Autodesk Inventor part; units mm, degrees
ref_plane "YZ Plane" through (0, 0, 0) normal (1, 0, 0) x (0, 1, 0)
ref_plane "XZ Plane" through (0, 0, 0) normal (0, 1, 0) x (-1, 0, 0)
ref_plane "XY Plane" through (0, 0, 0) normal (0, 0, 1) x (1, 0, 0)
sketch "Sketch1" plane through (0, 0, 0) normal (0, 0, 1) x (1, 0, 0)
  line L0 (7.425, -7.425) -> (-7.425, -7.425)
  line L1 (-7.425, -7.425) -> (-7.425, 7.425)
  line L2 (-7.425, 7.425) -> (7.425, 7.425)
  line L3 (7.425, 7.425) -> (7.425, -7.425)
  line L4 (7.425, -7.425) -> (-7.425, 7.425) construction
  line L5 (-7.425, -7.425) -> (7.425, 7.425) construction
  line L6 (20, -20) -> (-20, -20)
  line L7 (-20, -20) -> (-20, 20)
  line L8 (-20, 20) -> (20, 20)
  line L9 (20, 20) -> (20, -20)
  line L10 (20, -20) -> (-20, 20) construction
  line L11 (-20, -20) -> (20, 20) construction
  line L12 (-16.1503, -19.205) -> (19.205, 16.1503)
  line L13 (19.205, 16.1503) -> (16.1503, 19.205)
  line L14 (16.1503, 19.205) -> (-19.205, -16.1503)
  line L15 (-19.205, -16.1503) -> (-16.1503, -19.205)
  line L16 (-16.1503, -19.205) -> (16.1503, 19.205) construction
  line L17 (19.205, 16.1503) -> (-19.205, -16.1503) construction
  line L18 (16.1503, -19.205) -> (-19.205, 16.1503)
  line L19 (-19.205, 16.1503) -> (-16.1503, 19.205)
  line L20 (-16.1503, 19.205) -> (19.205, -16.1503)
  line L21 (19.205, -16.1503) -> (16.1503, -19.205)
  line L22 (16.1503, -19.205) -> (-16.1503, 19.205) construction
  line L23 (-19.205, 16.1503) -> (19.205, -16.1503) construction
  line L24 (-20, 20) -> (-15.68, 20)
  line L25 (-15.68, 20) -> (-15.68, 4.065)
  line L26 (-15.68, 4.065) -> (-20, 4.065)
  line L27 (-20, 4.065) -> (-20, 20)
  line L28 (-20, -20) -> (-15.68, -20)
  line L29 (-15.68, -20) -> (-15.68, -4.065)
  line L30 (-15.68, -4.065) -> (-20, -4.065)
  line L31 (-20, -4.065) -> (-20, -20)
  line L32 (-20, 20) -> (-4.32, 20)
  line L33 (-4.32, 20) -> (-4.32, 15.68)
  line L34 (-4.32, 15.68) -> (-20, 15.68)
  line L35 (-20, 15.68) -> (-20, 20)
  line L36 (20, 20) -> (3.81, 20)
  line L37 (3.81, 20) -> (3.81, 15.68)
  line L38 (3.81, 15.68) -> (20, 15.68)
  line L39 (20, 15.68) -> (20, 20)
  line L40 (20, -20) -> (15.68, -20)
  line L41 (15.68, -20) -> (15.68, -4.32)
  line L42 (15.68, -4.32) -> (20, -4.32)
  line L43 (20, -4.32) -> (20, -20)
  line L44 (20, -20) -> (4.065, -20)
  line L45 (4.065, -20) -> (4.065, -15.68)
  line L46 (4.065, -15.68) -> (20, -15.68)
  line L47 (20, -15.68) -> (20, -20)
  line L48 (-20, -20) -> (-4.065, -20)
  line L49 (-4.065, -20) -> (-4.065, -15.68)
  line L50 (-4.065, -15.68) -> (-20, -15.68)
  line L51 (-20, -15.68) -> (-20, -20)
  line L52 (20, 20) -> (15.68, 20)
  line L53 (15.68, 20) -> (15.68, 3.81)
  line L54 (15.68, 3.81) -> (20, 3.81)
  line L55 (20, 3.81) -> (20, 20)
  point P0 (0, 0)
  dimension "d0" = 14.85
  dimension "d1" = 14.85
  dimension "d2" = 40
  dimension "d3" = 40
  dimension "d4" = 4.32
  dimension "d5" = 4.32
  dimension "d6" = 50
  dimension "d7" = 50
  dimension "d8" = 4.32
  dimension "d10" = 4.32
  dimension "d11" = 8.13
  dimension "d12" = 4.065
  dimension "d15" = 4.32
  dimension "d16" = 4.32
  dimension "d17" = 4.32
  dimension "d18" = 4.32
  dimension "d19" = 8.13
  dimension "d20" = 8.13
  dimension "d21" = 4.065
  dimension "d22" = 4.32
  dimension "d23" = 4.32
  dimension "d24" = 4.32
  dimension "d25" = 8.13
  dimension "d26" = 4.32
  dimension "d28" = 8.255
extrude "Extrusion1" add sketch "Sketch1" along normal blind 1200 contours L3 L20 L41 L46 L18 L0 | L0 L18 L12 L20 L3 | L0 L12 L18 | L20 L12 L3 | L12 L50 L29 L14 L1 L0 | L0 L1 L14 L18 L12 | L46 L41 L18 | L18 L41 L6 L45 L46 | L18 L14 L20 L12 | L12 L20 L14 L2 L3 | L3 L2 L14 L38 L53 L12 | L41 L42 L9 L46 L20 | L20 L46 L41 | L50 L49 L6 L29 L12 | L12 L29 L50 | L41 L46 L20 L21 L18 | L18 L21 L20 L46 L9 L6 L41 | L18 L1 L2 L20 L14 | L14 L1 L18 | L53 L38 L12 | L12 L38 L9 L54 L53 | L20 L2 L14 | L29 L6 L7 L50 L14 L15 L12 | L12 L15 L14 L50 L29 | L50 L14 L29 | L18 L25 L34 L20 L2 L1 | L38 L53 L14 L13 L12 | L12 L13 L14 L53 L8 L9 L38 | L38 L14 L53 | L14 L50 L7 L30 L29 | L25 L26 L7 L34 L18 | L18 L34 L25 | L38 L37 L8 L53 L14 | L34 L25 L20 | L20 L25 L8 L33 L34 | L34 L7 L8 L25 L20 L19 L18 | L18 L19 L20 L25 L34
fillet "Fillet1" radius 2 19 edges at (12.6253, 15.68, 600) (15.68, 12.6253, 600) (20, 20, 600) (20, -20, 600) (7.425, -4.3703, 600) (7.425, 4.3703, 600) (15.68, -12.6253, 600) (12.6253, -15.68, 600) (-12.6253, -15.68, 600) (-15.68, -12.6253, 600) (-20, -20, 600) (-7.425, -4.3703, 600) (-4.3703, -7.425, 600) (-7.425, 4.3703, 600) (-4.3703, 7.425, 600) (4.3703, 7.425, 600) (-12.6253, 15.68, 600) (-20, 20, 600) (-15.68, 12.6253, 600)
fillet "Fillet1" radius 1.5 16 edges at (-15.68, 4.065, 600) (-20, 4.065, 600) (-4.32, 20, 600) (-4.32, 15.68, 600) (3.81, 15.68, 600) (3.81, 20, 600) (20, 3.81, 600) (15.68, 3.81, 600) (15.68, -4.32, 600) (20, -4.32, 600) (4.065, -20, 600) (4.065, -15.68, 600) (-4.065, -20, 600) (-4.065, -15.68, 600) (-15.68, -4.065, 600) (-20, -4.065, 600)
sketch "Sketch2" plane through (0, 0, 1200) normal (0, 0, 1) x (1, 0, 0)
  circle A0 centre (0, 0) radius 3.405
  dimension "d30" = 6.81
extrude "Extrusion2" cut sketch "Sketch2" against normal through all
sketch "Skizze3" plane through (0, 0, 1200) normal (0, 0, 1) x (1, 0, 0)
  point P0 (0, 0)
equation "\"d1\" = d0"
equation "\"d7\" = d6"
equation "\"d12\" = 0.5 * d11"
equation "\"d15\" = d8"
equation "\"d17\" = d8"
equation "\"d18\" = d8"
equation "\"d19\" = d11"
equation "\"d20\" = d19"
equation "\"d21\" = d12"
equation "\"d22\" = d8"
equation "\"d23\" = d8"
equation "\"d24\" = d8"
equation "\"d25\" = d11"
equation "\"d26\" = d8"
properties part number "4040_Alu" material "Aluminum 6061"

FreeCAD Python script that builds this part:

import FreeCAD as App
import Part
import Sketcher

V = App.Vector
Q = App.Units.Quantity


def edges_at(feature, points):
    """Names of the edges that pass closest to the given points."""
    edges = feature.Shape.Edges
    near = lambda p: min(range(len(edges)), key=lambda i: edges[i].distToShape(Part.Vertex(*p))[0])
    return sorted({f"Edge{near(p) + 1}" for p in points})

doc = App.newDocument("Part")
body = doc.addObject("PartDesign::Body", "Body")

# Sketch on XY plane
sketch1 = body.newObject("Sketcher::SketchObject", "Sketch")
sketch1.AttachmentSupport = (doc.getObject("XY_Plane"), [""])
sketch1.MapMode = "FlatFace"
sketch1.addGeometry(Part.LineSegment(V(15.68, -12.6253, 0), V(7.425, -4.3703, 0)), False)
sketch1.addGeometry(Part.LineSegment(V(7.425, -4.3703, 0), V(7.425, 4.3703, 0)), False)
sketch1.addGeometry(Part.LineSegment(V(7.425, 4.3703, 0), V(15.68, 12.6253, 0)), False)
sketch1.addGeometry(Part.LineSegment(V(15.68, 12.6253, 0), V(15.68, 3.81, 0)), False)
sketch1.addGeometry(Part.LineSegment(V(15.68, 3.81, 0), V(20, 3.81, 0)), False)
sketch1.addGeometry(Part.LineSegment(V(20, 3.81, 0), V(20, 20, 0)), False)
sketch1.addGeometry(Part.LineSegment(V(20, 20, 0), V(3.81, 20, 0)), False)
sketch1.addGeometry(Part.LineSegment(V(3.81, 20, 0), V(3.81, 15.68, 0)), False)
sketch1.addGeometry(Part.LineSegment(V(3.81, 15.68, 0), V(12.6253, 15.68, 0)), False)
sketch1.addGeometry(Part.LineSegment(V(12.6253, 15.68, 0), V(4.3703, 7.425, 0)), False)
sketch1.addGeometry(Part.LineSegment(V(4.3703, 7.425, 0), V(-4.3703, 7.425, 0)), False)
sketch1.addGeometry(Part.LineSegment(V(-4.3703, 7.425, 0), V(-12.6253, 15.68, 0)), False)
sketch1.addGeometry(Part.LineSegment(V(-12.6253, 15.68, 0), V(-4.32, 15.68, 0)), False)
sketch1.addGeometry(Part.LineSegment(V(-4.32, 15.68, 0), V(-4.32, 20, 0)), False)
sketch1.addGeometry(Part.LineSegment(V(-4.32, 20, 0), V(-20, 20, 0)), False)
sketch1.addGeometry(Part.LineSegment(V(-20, 20, 0), V(-20, 4.065, 0)), False)
sketch1.addGeometry(Part.LineSegment(V(-20, 4.065, 0), V(-15.68, 4.065, 0)), False)
sketch1.addGeometry(Part.LineSegment(V(-15.68, 4.065, 0), V(-15.68, 12.6253, 0)), False)
sketch1.addGeometry(Part.LineSegment(V(-15.68, 12.6253, 0), V(-7.425, 4.3703, 0)), False)
sketch1.addGeometry(Part.LineSegment(V(-7.425, 4.3703, 0), V(-7.425, -4.3703, 0)), False)
sketch1.addGeometry(Part.LineSegment(V(-7.425, -4.3703, 0), V(-15.68, -12.6253, 0)), False)
sketch1.addGeometry(Part.LineSegment(V(-15.68, -12.6253, 0), V(-15.68, -4.065, 0)), False)
sketch1.addGeometry(Part.LineSegment(V(-15.68, -4.065, 0), V(-20, -4.065, 0)), False)
sketch1.addGeometry(Part.LineSegment(V(-20, -4.065, 0), V(-20, -20, 0)), False)
sketch1.addGeometry(Part.LineSegment(V(-20, -20, 0), V(-4.065, -20, 0)), False)
sketch1.addGeometry(Part.LineSegment(V(-4.065, -20, 0), V(-4.065, -15.68, 0)), False)
sketch1.addGeometry(Part.LineSegment(V(-4.065, -15.68, 0), V(-12.6253, -15.68, 0)), False)
sketch1.addGeometry(Part.LineSegment(V(-12.6253, -15.68, 0), V(-4.3703, -7.425, 0)), False)
sketch1.addGeometry(Part.LineSegment(V(-4.3703, -7.425, 0), V(4.3703, -7.425, 0)), False)
sketch1.addGeometry(Part.LineSegment(V(4.3703, -7.425, 0), V(12.6253, -15.68, 0)), False)
sketch1.addGeometry(Part.LineSegment(V(12.6253, -15.68, 0), V(4.065, -15.68, 0)), False)
sketch1.addGeometry(Part.LineSegment(V(4.065, -15.68, 0), V(4.065, -20, 0)), False)
sketch1.addGeometry(Part.LineSegment(V(4.065, -20, 0), V(20, -20, 0)), False)
sketch1.addGeometry(Part.LineSegment(V(20, -20, 0), V(20, -4.32, 0)), False)
sketch1.addGeometry(Part.LineSegment(V(20, -4.32, 0), V(15.68, -4.32, 0)), False)
sketch1.addGeometry(Part.LineSegment(V(15.68, -4.32, 0), V(15.68, -12.6253, 0)), False)
sketch1.addConstraint(Sketcher.Constraint("Coincident", 0, 2, 1, 1))
sketch1.addConstraint(Sketcher.Constraint("Coincident", 1, 2, 2, 1))
sketch1.addConstraint(Sketcher.Constraint("Coincident", 2, 2, 3, 1))
sketch1.addConstraint(Sketcher.Constraint("Coincident", 3, 2, 4, 1))
sketch1.addConstraint(Sketcher.Constraint("Coincident", 4, 2, 5, 1))
sketch1.addConstraint(Sketcher.Constraint("Coincident", 5, 2, 6, 1))
sketch1.addConstraint(Sketcher.Constraint("Coincident", 6, 2, 7, 1))
sketch1.addConstraint(Sketcher.Constraint("Coincident", 7, 2, 8, 1))
sketch1.addConstraint(Sketcher.Constraint("Coincident", 8, 2, 9, 1))
sketch1.addConstraint(Sketcher.Constraint("Coincident", 9, 2, 10, 1))
sketch1.addConstraint(Sketcher.Constraint("Coincident", 10, 2, 11, 1))
sketch1.addConstraint(Sketcher.Constraint("Coincident", 11, 2, 12, 1))
sketch1.addConstraint(Sketcher.Constraint("Coincident", 12, 2, 13, 1))
sketch1.addConstraint(Sketcher.Constraint("Coincident", 13, 2, 14, 1))
sketch1.addConstraint(Sketcher.Constraint("Coincident", 14, 2, 15, 1))
sketch1.addConstraint(Sketcher.Constraint("Coincident", 15, 2, 16, 1))
sketch1.addConstraint(Sketcher.Constraint("Coincident", 16, 2, 17, 1))
sketch1.addConstraint(Sketcher.Constraint("Coincident", 17, 2, 18, 1))
sketch1.addConstraint(Sketcher.Constraint("Coincident", 18, 2, 19, 1))
sketch1.addConstraint(Sketcher.Constraint("Coincident", 19, 2, 20, 1))
sketch1.addConstraint(Sketcher.Constraint("Coincident", 20, 2, 21, 1))
sketch1.addConstraint(Sketcher.Constraint("Coincident", 21, 2, 22, 1))
sketch1.addConstraint(Sketcher.Constraint("Coincident", 22, 2, 23, 1))
sketch1.addConstraint(Sketcher.Constraint("Coincident", 23, 2, 24, 1))
sketch1.addConstraint(Sketcher.Constraint("Coincident", 24, 2, 25, 1))
sketch1.addConstraint(Sketcher.Constraint("Coincident", 25, 2, 26, 1))
sketch1.addConstraint(Sketcher.Constraint("Coincident", 26, 2, 27, 1))
sketch1.addConstraint(Sketcher.Constraint("Coincident", 27, 2, 28, 1))
sketch1.addConstraint(Sketcher.Constraint("Coincident", 28, 2, 29, 1))
sketch1.addConstraint(Sketcher.Constraint("Coincident", 29, 2, 30, 1))
sketch1.addConstraint(Sketcher.Constraint("Coincident", 30, 2, 31, 1))
sketch1.addConstraint(Sketcher.Constraint("Coincident", 31, 2, 32, 1))
sketch1.addConstraint(Sketcher.Constraint("Coincident", 32, 2, 33, 1))
sketch1.addConstraint(Sketcher.Constraint("Coincident", 33, 2, 34, 1))
sketch1.addConstraint(Sketcher.Constraint("Coincident", 34, 2, 35, 1))
sketch1.addConstraint(Sketcher.Constraint("Coincident", 35, 2, 0, 1))
sketch1.addConstraint(Sketcher.Constraint("Vertical", 1))
sketch1.addConstraint(Sketcher.Constraint("Vertical", 3))
sketch1.addConstraint(Sketcher.Constraint("Horizontal", 4))
sketch1.addConstraint(Sketcher.Constraint("Vertical", 5))
sketch1.addConstraint(Sketcher.Constraint("Horizontal", 6))
sketch1.addConstraint(Sketcher.Constraint("Vertical", 7))
sketch1.addConstraint(Sketcher.Constraint("Horizontal", 8))
sketch1.addConstraint(Sketcher.Constraint("Horizontal", 10))
sketch1.addConstraint(Sketcher.Constraint("Horizontal", 12))
sketch1.addConstraint(Sketcher.Constraint("Vertical", 13))
sketch1.addConstraint(Sketcher.Constraint("Horizontal", 14))
sketch1.addConstraint(Sketcher.Constraint("Vertical", 15))
sketch1.addConstraint(Sketcher.Constraint("Horizontal", 16))
sketch1.addConstraint(Sketcher.Constraint("Vertical", 17))
sketch1.addConstraint(Sketcher.Constraint("Vertical", 19))
sketch1.addConstraint(Sketcher.Constraint("Vertical", 21))
sketch1.addConstraint(Sketcher.Constraint("Horizontal", 22))
sketch1.addConstraint(Sketcher.Constraint("Vertical", 23))
sketch1.addConstraint(Sketcher.Constraint("Horizontal", 24))
sketch1.addConstraint(Sketcher.Constraint("Vertical", 25))
sketch1.addConstraint(Sketcher.Constraint("Horizontal", 26))
sketch1.addConstraint(Sketcher.Constraint("Horizontal", 28))
sketch1.addConstraint(Sketcher.Constraint("Horizontal", 30))
sketch1.addConstraint(Sketcher.Constraint("Vertical", 31))
sketch1.addConstraint(Sketcher.Constraint("Horizontal", 32))
sketch1.addConstraint(Sketcher.Constraint("Vertical", 33))
sketch1.addConstraint(Sketcher.Constraint("Horizontal", 34))
sketch1.addConstraint(Sketcher.Constraint("Vertical", 35))
sketch1.addConstraint(Sketcher.Constraint("Symmetric", 0, 2, 18, 2, -1, 1))
sketch1.addConstraint(Sketcher.Constraint("Symmetric", 2, 2, 20, 2, -1, 1))
sketch1.addConstraint(Sketcher.Constraint("Symmetric", 5, 2, 23, 2, -1, 1))
sketch1.addConstraint(Sketcher.Constraint("Symmetric", 8, 2, 26, 2, -1, 1))
sketch1.addConstraint(Sketcher.Constraint("Symmetric", 9, 2, 27, 2, -1, 1))
sketch1.addConstraint(Sketcher.Constraint("Symmetric", 11, 2, 29, 2, -1, 1))
sketch1.addConstraint(Sketcher.Constraint("Symmetric", 14, 2, 32, 2, -1, 1))
sketch1.addConstraint(Sketcher.Constraint("Symmetric", 17, 2, 35, 2, -1, 1))
sketch1.addConstraint(Sketcher.Constraint("Symmetric", 8, 2, 11, 2, -2))
sketch1.addConstraint(Sketcher.Constraint("Symmetric", 5, 2, 14, 2, -2))
sketch1.addConstraint(Sketcher.Constraint("Symmetric", 2, 2, 17, 2, -2))
sketch1.addConstraint(Sketcher.Constraint("Perpendicular", 0, 2))
sketch1.addConstraint(Sketcher.Constraint("Parallel", 2, 9))
sketch1.addConstraint(Sketcher.Constraint("Perpendicular", 9, 11))
sketch1.addConstraint(Sketcher.Constraint("Perpendicular", 18, 20))
sketch1.addConstraint(Sketcher.Constraint("Perpendicular", 27, 29))
sketch1.addConstraint(Sketcher.Constraint("Horizontal", 1, 2, 18, 2))
sketch1.addConstraint(Sketcher.Constraint("Equal", 26, 30))
sketch1.addConstraint(Sketcher.Constraint("Equal", 28, 1))
sketch1.addConstraint(Sketcher.Constraint("Equal", 8, 3))
sketch1.addConstraint(Sketcher.Constraint("Equal", 6, 5))
sketch1.addConstraint(Sketcher.Constraint("Equal", 34, 7))
sketch1.addConstraint(Sketcher.Constraint("Equal", 32, 15))
sketch1.addConstraint(Sketcher.Constraint("Equal", 17, 21))
sketch1.addConstraint(Sketcher.Constraint("Equal", 14, 33))
sketch1.addConstraint(Sketcher.Constraint("Equal", 2, 9))
sketch1.addConstraint(Sketcher.Constraint("DistanceX", 4, 1, 4, 2, Q("4.32 mm")))
sketch1.addConstraint(Sketcher.Constraint("DistanceX", 12, 2, -1, 1, Q("4.32 mm")))
sketch1.addConstraint(Sketcher.Constraint("DistanceX", 12, 2, 7, 2, Q("8.13 mm")))
sketch1.addConstraint(Sketcher.Constraint("DistanceX", 19, 2, 0, 2, Q("14.85 mm")))
sketch1.addConstraint(Sketcher.Constraint("DistanceY", 21, 2, 16, 2, Q("8.13 mm")))
sketch1.addConstraint(Sketcher.Constraint("DistanceX", -1, 1, 4, 2, Q("20 mm")))
sketch1.addConstraint(Sketcher.Constraint("DistanceX", 8, 1, 8, 2, Q("8.8153 mm")))
pad1 = body.newObject("PartDesign::Pad", "Pad")
pad1.Profile = sketch1
pad1.Length = 1200
doc.recompute()

fillet = body.newObject("PartDesign::Fillet", "Fillet")
fillet.Base = (pad1, edges_at(pad1, [
    (12.625, 15.68, 600),
    (15.68, 12.625, 600),
    (20, 20, 600),
    (20, -20, 600),
    (7.425, -4.37, 600),
    (7.425, 4.37, 600),
    (15.68, -12.625, 600),
    (12.625, -15.68, 600),
    (-12.625, -15.68, 600),
    (-15.68, -12.625, 600),
    (-20, -20, 600),
    (-7.425, -4.37, 600),
    (-4.37, -7.425, 600),
    (-7.425, 4.37, 600),
    (-4.37, 7.425, 600),
    (4.37, 7.425, 600),
    (-12.625, 15.68, 600),
    (-20, 20, 600),
    (-15.68, 12.625, 600),
]))
fillet.Radius = 2
doc.recompute()

fillet2 = body.newObject("PartDesign::Fillet", "Fillet001")
fillet2.Base = (fillet, edges_at(fillet, [
    (-15.68, 4.065, 600),
    (-20, 4.065, 600),
    (-4.32, 20, 600),
    (-4.32, 15.68, 600),
    (3.81, 15.68, 600),
    (3.81, 20, 600),
    (20, 3.81, 600),
    (15.68, 3.81, 600),
    (15.68, -4.32, 600),
    (20, -4.32, 600),
    (4.065, -20, 600),
    (4.065, -15.68, 600),
    (-4.065, -20, 600),
    (-4.065, -15.68, 600),
    (-15.68, -4.065, 600),
    (-20, -4.065, 600),
]))
fillet2.Radius = 1.5

# Sketch on XY plane
sketch2 = body.newObject("Sketcher::SketchObject", "Sketch001")
sketch2.AttachmentSupport = (doc.getObject("XY_Plane"), [""])
sketch2.MapMode = "FlatFace"
sketch2.AttachmentOffset = App.Placement(V(0, 0, 1200), App.Rotation())
sketch2.addGeometry(Part.Circle(V(0, 0, 0), V(0, 0, 1), 3.405), False)
sketch2.addConstraint(Sketcher.Constraint("Coincident", 0, 3, -1, 1))
sketch2.addConstraint(Sketcher.Constraint("Diameter", 0, Q("6.81 mm")))
pocket1 = body.newObject("PartDesign::Pocket", "Pocket")
pocket1.Profile = sketch2
pocket1.Type = "ThroughAll"

doc.recompute()
